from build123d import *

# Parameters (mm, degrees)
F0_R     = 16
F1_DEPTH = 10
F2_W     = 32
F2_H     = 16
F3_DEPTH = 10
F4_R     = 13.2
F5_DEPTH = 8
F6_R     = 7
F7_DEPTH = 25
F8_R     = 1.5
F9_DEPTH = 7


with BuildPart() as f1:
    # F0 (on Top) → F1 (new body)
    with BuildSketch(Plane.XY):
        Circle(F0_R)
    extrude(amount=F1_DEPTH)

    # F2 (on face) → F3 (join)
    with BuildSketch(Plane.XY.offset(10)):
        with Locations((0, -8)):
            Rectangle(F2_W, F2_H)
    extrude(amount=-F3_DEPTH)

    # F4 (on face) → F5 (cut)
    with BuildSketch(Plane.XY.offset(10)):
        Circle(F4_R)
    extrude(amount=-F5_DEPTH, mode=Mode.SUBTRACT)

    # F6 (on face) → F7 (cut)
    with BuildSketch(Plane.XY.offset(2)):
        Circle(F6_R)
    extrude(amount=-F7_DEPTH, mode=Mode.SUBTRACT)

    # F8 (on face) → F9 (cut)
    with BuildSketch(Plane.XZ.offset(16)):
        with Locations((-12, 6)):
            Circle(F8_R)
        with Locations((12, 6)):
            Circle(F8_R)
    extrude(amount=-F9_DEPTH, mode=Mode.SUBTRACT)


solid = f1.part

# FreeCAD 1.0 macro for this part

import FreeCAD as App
import Part
import Sketcher
from FreeCAD import Vector
Q = App.Units.Quantity

doc = App.newDocument("Part")
body = doc.addObject("PartDesign::Body", "Body")

sketch1 = doc.addObject("Sketcher::SketchObject", "Sketch")
body.addObject(sketch1)
sketch1.AttachmentSupport = (doc.XY_Plane, [""])
sketch1.MapMode = "FlatFace"
sketch1.addGeometry(Part.Circle(Vector(0, 0, 0), Vector(0, 0, 1), 16), False)
sketch1.addConstraint(Sketcher.Constraint("Coincident", 0, 3, -1, 1))
sketch1.addConstraint(Sketcher.Constraint("Diameter", 0, Q("32 mm")))
pad1 = doc.addObject("PartDesign::Pad", "Pad")
body.addObject(pad1)
pad1.Profile = sketch1
pad1.Length = 10

sketch2 = doc.addObject("Sketcher::SketchObject", "Sketch001")
body.addObject(sketch2)
sketch2.AttachmentSupport = (doc.XY_Plane, [""])
sketch2.MapMode = "FlatFace"
sketch2.AttachmentOffset = App.Placement(Vector(0, 0, 10), App.Rotation())
sketch2.addGeometry(Part.LineSegment(Vector(-16, 0, 0), Vector(-16, -16, 0)), False)
sketch2.addGeometry(Part.LineSegment(Vector(-16, -16, 0), Vector(16, -16, 0)), False)
sketch2.addGeometry(Part.LineSegment(Vector(16, -16, 0), Vector(16, 0, 0)), False)
sketch2.addGeometry(Part.LineSegment(Vector(16, 0, 0), Vector(-16, 0, 0)), False)
sketch2.addConstraint(Sketcher.Constraint("Coincident", 0, 2, 1, 1))
sketch2.addConstraint(Sketcher.Constraint("Coincident", 1, 2, 2, 1))
sketch2.addConstraint(Sketcher.Constraint("Coincident", 2, 2, 3, 1))
sketch2.addConstraint(Sketcher.Constraint("Coincident", 3, 2, 0, 1))
sketch2.addConstraint(Sketcher.Constraint("Vertical", 0))
sketch2.addConstraint(Sketcher.Constraint("Horizontal", 1))
sketch2.addConstraint(Sketcher.Constraint("Vertical", 2))
sketch2.addConstraint(Sketcher.Constraint("Horizontal", 3))
sketch2.addConstraint(Sketcher.Constraint("Symmetric", 2, 2, 3, 2, -1, 1))
sketch2.addConstraint(Sketcher.Constraint("DistanceX", 1, 1, 1, 2, Q("32 mm")))
sketch2.addConstraint(Sketcher.Constraint("DistanceY", 0, 2, 0, 1, Q("16 mm")))
pad2 = doc.addObject("PartDesign::Pad", "Pad001")
body.addObject(pad2)
pad2.Profile = sketch2
pad2.Length = 10
pad2.Reversed = True

sketch3 = doc.addObject("Sketcher::SketchObject", "Sketch002")
body.addObject(sketch3)
sketch3.AttachmentSupport = (doc.XY_Plane, [""])
sketch3.MapMode = "FlatFace"
sketch3.AttachmentOffset = App.Placement(Vector(0, 0, 10), App.Rotation())
sketch3.addGeometry(Part.Circle(Vector(0, 0, 0), Vector(0, 0, 1), 13), False)
sketch3.addConstraint(Sketcher.Constraint("Coincident", 0, 3, -1, 1))
sketch3.addConstraint(Sketcher.Constraint("Diameter", 0, Q("26.4 mm")))
pocket1 = doc.addObject("PartDesign::Pocket", "Pocket")
body.addObject(pocket1)
pocket1.Profile = sketch3
pocket1.Length = 8

sketch4 = doc.addObject("Sketcher::SketchObject", "Sketch003")
body.addObject(sketch4)
sketch4.AttachmentSupport = (doc.XY_Plane, [""])
sketch4.MapMode = "FlatFace"
sketch4.AttachmentOffset = App.Placement(Vector(0, 0, 2), App.Rotation())
sketch4.addGeometry(Part.Circle(Vector(0, 0, 0), Vector(0, 0, 1), 7), False)
sketch4.addConstraint(Sketcher.Constraint("Coincident", 0, 3, -1, 1))
sketch4.addConstraint(Sketcher.Constraint("Diameter", 0, Q("14 mm")))
pocket2 = doc.addObject("PartDesign::Pocket", "Pocket001")
body.addObject(pocket2)
pocket2.Profile = sketch4
pocket2.Length = 25

sketch5 = doc.addObject("Sketcher::SketchObject", "Sketch004")
body.addObject(sketch5)
sketch5.AttachmentSupport = (doc.XZ_Plane, [""])
sketch5.MapMode = "FlatFace"
sketch5.AttachmentOffset = App.Placement(Vector(0, 0, 16), App.Rotation())
sketch5.addGeometry(Part.Circle(Vector(-12, 6, 0), Vector(0, 0, 1), 1.5), False)
sketch5.addGeometry(Part.Circle(Vector(12, 6, 0), Vector(0, 0, 1), 1.5), False)
sketch5.addConstraint(Sketcher.Constraint("Equal", 0, 1))
sketch5.addConstraint(Sketcher.Constraint("Symmetric", 0, 3, 1, 3, -2))
sketch5.addConstraint(Sketcher.Constraint("Diameter", 0, Q("3 mm")))
sketch5.addConstraint(Sketcher.Constraint("DistanceX", 0, 3, -1, 1, Q("12 mm")))
sketch5.addConstraint(Sketcher.Constraint("DistanceY", -1, 1, 0, 3, Q("6 mm")))
pocket3 = doc.addObject("PartDesign::Pocket", "Pocket002")
body.addObject(pocket3)
pocket3.Profile = sketch5
pocket3.Length = 7

doc.recompute()
